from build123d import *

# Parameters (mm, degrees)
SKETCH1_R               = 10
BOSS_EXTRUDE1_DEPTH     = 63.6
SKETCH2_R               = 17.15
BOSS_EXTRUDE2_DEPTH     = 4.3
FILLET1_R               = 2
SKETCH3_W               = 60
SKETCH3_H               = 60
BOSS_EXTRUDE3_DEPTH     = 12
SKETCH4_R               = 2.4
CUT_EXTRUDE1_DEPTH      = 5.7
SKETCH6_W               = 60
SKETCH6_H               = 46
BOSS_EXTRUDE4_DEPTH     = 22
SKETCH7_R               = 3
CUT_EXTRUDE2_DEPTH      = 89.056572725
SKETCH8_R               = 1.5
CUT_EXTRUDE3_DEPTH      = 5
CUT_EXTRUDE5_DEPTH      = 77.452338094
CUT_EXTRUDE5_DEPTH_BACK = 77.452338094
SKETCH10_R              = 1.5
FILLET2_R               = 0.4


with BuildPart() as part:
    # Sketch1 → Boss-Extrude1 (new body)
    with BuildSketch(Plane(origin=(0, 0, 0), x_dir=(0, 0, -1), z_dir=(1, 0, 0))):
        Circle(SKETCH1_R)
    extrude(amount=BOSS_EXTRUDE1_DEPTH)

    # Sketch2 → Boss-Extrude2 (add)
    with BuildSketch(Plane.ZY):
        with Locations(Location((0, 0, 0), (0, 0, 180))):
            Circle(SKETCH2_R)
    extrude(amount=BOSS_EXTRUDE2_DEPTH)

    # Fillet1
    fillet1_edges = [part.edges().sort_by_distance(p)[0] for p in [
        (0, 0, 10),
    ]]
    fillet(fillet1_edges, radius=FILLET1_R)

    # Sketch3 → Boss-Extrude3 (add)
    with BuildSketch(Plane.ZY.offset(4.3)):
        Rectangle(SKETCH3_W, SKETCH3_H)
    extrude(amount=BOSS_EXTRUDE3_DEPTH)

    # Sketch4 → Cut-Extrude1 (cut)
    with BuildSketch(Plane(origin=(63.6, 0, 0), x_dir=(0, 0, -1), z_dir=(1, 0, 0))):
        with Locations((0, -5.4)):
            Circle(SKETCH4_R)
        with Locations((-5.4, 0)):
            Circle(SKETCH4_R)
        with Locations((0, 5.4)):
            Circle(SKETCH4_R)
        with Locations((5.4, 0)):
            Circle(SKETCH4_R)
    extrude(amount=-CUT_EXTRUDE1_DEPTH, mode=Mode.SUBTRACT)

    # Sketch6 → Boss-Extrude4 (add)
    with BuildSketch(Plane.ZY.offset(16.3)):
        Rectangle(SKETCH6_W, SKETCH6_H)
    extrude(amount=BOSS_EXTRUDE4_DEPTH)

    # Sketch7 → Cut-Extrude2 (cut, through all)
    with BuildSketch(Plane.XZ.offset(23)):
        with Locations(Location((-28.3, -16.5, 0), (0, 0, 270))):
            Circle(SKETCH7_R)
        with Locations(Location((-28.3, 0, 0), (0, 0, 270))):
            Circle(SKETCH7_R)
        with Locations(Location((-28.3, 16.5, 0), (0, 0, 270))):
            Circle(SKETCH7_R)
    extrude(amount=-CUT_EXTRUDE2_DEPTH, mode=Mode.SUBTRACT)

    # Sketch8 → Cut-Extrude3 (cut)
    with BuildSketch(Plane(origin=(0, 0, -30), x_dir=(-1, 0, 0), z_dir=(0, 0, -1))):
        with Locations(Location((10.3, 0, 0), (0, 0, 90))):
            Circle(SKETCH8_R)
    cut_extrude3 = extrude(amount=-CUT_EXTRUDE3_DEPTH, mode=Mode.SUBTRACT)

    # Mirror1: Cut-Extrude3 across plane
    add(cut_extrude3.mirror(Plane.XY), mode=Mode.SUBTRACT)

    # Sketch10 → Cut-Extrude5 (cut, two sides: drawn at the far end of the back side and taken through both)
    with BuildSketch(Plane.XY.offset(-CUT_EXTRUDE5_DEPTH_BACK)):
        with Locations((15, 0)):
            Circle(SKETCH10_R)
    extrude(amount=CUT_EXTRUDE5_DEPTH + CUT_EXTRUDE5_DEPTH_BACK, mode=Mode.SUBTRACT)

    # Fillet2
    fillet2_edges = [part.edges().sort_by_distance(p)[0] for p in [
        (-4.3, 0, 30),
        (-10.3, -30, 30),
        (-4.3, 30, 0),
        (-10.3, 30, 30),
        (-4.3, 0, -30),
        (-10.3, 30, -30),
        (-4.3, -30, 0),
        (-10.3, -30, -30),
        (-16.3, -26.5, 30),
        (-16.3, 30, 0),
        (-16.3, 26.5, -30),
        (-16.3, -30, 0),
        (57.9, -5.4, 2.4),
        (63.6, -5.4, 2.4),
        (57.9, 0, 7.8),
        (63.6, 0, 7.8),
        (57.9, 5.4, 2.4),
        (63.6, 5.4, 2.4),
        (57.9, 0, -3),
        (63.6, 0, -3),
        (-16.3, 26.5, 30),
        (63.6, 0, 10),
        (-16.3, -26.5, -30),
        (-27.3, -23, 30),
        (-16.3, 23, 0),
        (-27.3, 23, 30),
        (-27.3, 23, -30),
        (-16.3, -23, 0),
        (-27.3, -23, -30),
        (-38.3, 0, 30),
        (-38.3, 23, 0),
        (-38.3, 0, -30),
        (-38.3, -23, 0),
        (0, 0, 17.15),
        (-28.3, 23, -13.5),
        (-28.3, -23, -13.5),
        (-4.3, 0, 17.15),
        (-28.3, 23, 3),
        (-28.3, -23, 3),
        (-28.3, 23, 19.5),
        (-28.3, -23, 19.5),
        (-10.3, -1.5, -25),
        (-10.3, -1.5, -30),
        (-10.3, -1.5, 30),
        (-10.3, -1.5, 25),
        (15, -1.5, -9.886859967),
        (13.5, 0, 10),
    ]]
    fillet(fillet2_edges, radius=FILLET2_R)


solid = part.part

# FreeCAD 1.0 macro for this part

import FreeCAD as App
import Part
import Sketcher

V = App.Vector
Q = App.Units.Quantity


def edges_at(feature, points):
    """Names of the edges that pass closest to the given points."""
    edges = feature.Shape.Edges
    near = lambda p: min(range(len(edges)), key=lambda i: edges[i].distToShape(Part.Vertex(*p))[0])
    return sorted({f"Edge{near(p) + 1}" for p in points})

doc = App.newDocument("Part")
body = doc.addObject("PartDesign::Body", "Body")

sketch1 = body.newObject("Sketcher::SketchObject", "Sketch")
sketch1.AttachmentSupport = (doc.getObject("YZ_Plane"), [""])
sketch1.MapMode = "FlatFace"
sketch1.addGeometry(Part.Circle(V(0, 0, 0), V(0, 0, 1), 10), False)
sketch1.addConstraint(Sketcher.Constraint("Coincident", 0, 3, -1, 1))
sketch1.addConstraint(Sketcher.Constraint("Diameter", 0, Q("20 mm")))
pad1 = body.newObject("PartDesign::Pad", "Pad")
pad1.Profile = sketch1
pad1.Length = 63.6

sketch2 = body.newObject("Sketcher::SketchObject", "Sketch001")
sketch2.AttachmentSupport = (doc.getObject("YZ_Plane"), [""])
sketch2.MapMode = "FlatFace"
sketch2.addGeometry(Part.Circle(V(0, 0, 0), V(0, 0, 1), 17), False)
sketch2.addConstraint(Sketcher.Constraint("Coincident", 0, 3, -1, 1))
sketch2.addConstraint(Sketcher.Constraint("Diameter", 0, Q("34.3 mm")))
pad2 = body.newObject("PartDesign::Pad", "Pad001")
pad2.Profile = sketch2
pad2.Length = 4.3
pad2.Reversed = True
doc.recompute()

fillet = body.newObject("PartDesign::Fillet", "Fillet")
fillet.Base = (pad2, edges_at(pad2, [(0, 0, 10)]))
fillet.Radius = 2

sketch3 = body.newObject("Sketcher::SketchObject", "Sketch002")
sketch3.AttachmentSupport = (doc.getObject("YZ_Plane"), [""])
sketch3.MapMode = "FlatFace"
sketch3.AttachmentOffset = App.Placement(V(0, 0, -4.3), App.Rotation())
sketch3.addGeometry(Part.LineSegment(V(30, -30, 0), V(-30, -30, 0)), False)
sketch3.addGeometry(Part.LineSegment(V(-30, -30, 0), V(-30, 30, 0)), False)
sketch3.addGeometry(Part.LineSegment(V(-30, 30, 0), V(30, 30, 0)), False)
sketch3.addGeometry(Part.LineSegment(V(30, 30, 0), V(30, -30, 0)), False)
sketch3.addConstraint(Sketcher.Constraint("Coincident", 0, 2, 1, 1))
sketch3.addConstraint(Sketcher.Constraint("Coincident", 1, 2, 2, 1))
sketch3.addConstraint(Sketcher.Constraint("Coincident", 2, 2, 3, 1))
sketch3.addConstraint(Sketcher.Constraint("Coincident", 3, 2, 0, 1))
sketch3.addConstraint(Sketcher.Constraint("Horizontal", 0))
sketch3.addConstraint(Sketcher.Constraint("Vertical", 1))
sketch3.addConstraint(Sketcher.Constraint("Horizontal", 2))
sketch3.addConstraint(Sketcher.Constraint("Vertical", 3))
sketch3.addConstraint(Sketcher.Constraint("Symmetric", 0, 2, 2, 2, -1, 1))
sketch3.addConstraint(Sketcher.Constraint("Equal", 2, 1))
sketch3.addConstraint(Sketcher.Constraint("DistanceX", 0, 2, 0, 1, Q("60 mm")))
pad3 = body.newObject("PartDesign::Pad", "Pad002")
pad3.Profile = sketch3
pad3.Length = 12
pad3.Reversed = True

sketch4 = body.newObject("Sketcher::SketchObject", "Sketch003")
sketch4.AttachmentSupport = (doc.getObject("YZ_Plane"), [""])
sketch4.MapMode = "FlatFace"
sketch4.AttachmentOffset = App.Placement(V(0, 0, 63.6), App.Rotation())
sketch4.addGeometry(Part.Circle(V(-5.4, 0, 0), V(0, 0, 1), 2.4), False)
sketch4.addGeometry(Part.Circle(V(0, 5.4, 0), V(0, 0, 1), 2.4), False)
sketch4.addGeometry(Part.Circle(V(5.4, 0, 0), V(0, 0, 1), 2.4), False)
sketch4.addGeometry(Part.Circle(V(0, -5.4, 0), V(0, 0, 1), 2.4), False)
sketch4.addConstraint(Sketcher.Constraint("Equal", 0, 1))
sketch4.addConstraint(Sketcher.Constraint("Equal", 1, 2))
sketch4.addConstraint(Sketcher.Constraint("Equal", 2, 3))
sketch4.addConstraint(Sketcher.Constraint("Symmetric", 0, 3, 2, 3, -1, 1))
sketch4.addConstraint(Sketcher.Constraint("Symmetric", 1, 3, 3, 3, -1, 1))
sketch4.addConstraint(Sketcher.Constraint("PointOnObject", 0, 3, -1))
sketch4.addConstraint(Sketcher.Constraint("PointOnObject", 1, 3, -2))
sketch4.addConstraint(Sketcher.Constraint("Diameter", 0, Q("4.8 mm")))
sketch4.addConstraint(Sketcher.Constraint("DistanceX", 0, 3, -1, 1, Q("5.4 mm")))
sketch4.addConstraint(Sketcher.Constraint("DistanceY", -1, 1, 1, 3, Q("5.4 mm")))
pocket1 = body.newObject("PartDesign::Pocket", "Pocket")
pocket1.Profile = sketch4
pocket1.Length = 5.7

sketch5 = body.newObject("Sketcher::SketchObject", "Sketch004")
sketch5.AttachmentSupport = (doc.getObject("YZ_Plane"), [""])
sketch5.MapMode = "FlatFace"
sketch5.AttachmentOffset = App.Placement(V(0, 0, -16.3), App.Rotation())
sketch5.addGeometry(Part.LineSegment(V(23, -30, 0), V(-23, -30, 0)), False)
sketch5.addGeometry(Part.LineSegment(V(-23, -30, 0), V(-23, 30, 0)), False)
sketch5.addGeometry(Part.LineSegment(V(-23, 30, 0), V(23, 30, 0)), False)
sketch5.addGeometry(Part.LineSegment(V(23, 30, 0), V(23, -30, 0)), False)
sketch5.addConstraint(Sketcher.Constraint("Coincident", 0, 2, 1, 1))
sketch5.addConstraint(Sketcher.Constraint("Coincident", 1, 2, 2, 1))
sketch5.addConstraint(Sketcher.Constraint("Coincident", 2, 2, 3, 1))
sketch5.addConstraint(Sketcher.Constraint("Coincident", 3, 2, 0, 1))
sketch5.addConstraint(Sketcher.Constraint("Horizontal", 0))
sketch5.addConstraint(Sketcher.Constraint("Vertical", 1))
sketch5.addConstraint(Sketcher.Constraint("Horizontal", 2))
sketch5.addConstraint(Sketcher.Constraint("Vertical", 3))
sketch5.addConstraint(Sketcher.Constraint("Symmetric", 0, 2, 2, 2, -1, 1))
sketch5.addConstraint(Sketcher.Constraint("DistanceX", 0, 2, 0, 1, Q("46 mm")))
sketch5.addConstraint(Sketcher.Constraint("DistanceY", 1, 1, 1, 2, Q("60 mm")))
pad4 = body.newObject("PartDesign::Pad", "Pad003")
pad4.Profile = sketch5
pad4.Length = 22
pad4.Reversed = True

sketch6 = body.newObject("Sketcher::SketchObject", "Sketch005")
sketch6.AttachmentSupport = (doc.getObject("XZ_Plane"), [""])
sketch6.MapMode = "FlatFace"
sketch6.AttachmentOffset = App.Placement(V(0, 0, 23), App.Rotation())
sketch6.addGeometry(Part.Circle(V(-28.3, -16.5, 0), V(0, 0, 1), 3), False)
sketch6.addGeometry(Part.Circle(V(-28.3, 0, 0), V(0, 0, 1), 3), False)
sketch6.addGeometry(Part.Circle(V(-28.3, 16.5, 0), V(0, 0, 1), 3), False)
sketch6.addConstraint(Sketcher.Constraint("Equal", 0, 1))
sketch6.addConstraint(Sketcher.Constraint("Equal", 1, 2))
sketch6.addConstraint(Sketcher.Constraint("Symmetric", 0, 3, 2, 3, -1))
sketch6.addConstraint(Sketcher.Constraint("PointOnObject", 1, 3, -1))
sketch6.addConstraint(Sketcher.Constraint("Vertical", 0, 3, 1, 3))
sketch6.addConstraint(Sketcher.Constraint("Diameter", 0, Q("6 mm")))
sketch6.addConstraint(Sketcher.Constraint("DistanceY", 0, 3, 2, 3, Q("33 mm")))
sketch6.addConstraint(Sketcher.Constraint("DistanceX", 0, 3, -1, 1, Q("28.3 mm")))
pocket2 = body.newObject("PartDesign::Pocket", "Pocket001")
pocket2.Profile = sketch6
pocket2.Type = "ThroughAll"

sketch7 = body.newObject("Sketcher::SketchObject", "Sketch006")
sketch7.AttachmentSupport = (doc.getObject("XY_Plane"), [""])
sketch7.MapMode = "FlatFace"
sketch7.AttachmentOffset = App.Placement(V(0, 0, -30), App.Rotation())
sketch7.addGeometry(Part.Circle(V(-10.3, 0, 0), V(0, 0, 1), 1.5), False)
sketch7.addConstraint(Sketcher.Constraint("PointOnObject", 0, 3, -1))
sketch7.addConstraint(Sketcher.Constraint("Diameter", 0, Q("3 mm")))
sketch7.addConstraint(Sketcher.Constraint("DistanceX", 0, 3, -1, 1, Q("10.3 mm")))
pocket3 = body.newObject("PartDesign::Pocket", "Pocket002")
pocket3.Profile = sketch7
pocket3.Length = 5
pocket3.Reversed = True
doc.recompute()

mirrored = body.newObject("PartDesign::Mirrored", "Mirrored")
mirrored.Originals = [pocket3]
mirrored.MirrorPlane = (doc.getObject("XY_Plane"), [""])
body.Tip = mirrored

sketch8 = body.newObject("Sketcher::SketchObject", "Sketch007")
sketch8.AttachmentSupport = (doc.getObject("XY_Plane"), [""])
sketch8.MapMode = "FlatFace"
sketch8.addGeometry(Part.Circle(V(15, 0, 0), V(0, 0, 1), 1.5), False)
sketch8.addConstraint(Sketcher.Constraint("PointOnObject", 0, 3, -1))
sketch8.addConstraint(Sketcher.Constraint("Diameter", 0, Q("3 mm")))
sketch8.addConstraint(Sketcher.Constraint("DistanceX", -1, 1, 0, 3, Q("15 mm")))
pocket4 = body.newObject("PartDesign::Pocket", "Pocket003")
pocket4.Profile = sketch8
pocket4.Type = "ThroughAll"
pocket4.Midplane = True
doc.recompute()

fillet2 = body.newObject("PartDesign::Fillet", "Fillet001")
fillet2.Base = (pocket4, ["Edge1"])
fillet2.UseAllEdges = True
fillet2.Radius = 0.4

doc.recompute()
